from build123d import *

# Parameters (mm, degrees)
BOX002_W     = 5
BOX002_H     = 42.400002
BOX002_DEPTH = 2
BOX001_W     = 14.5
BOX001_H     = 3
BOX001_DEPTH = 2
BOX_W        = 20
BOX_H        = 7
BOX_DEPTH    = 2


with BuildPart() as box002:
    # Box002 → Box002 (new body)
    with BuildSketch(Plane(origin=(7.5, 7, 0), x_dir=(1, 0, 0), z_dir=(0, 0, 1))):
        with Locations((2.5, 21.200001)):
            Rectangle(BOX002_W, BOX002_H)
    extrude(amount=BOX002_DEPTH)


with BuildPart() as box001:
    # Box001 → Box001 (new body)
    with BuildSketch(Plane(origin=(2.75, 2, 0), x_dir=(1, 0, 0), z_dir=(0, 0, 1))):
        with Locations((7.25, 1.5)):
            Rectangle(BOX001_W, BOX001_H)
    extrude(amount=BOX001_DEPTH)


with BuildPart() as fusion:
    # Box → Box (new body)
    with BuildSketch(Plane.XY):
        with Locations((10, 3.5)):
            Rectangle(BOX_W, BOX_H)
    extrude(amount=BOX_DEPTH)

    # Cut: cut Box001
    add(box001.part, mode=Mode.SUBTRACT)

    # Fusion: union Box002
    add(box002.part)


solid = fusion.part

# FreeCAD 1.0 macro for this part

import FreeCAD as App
import Part
import Sketcher

V = App.Vector
Q = App.Units.Quantity


def add_polygon(sketch, points):
    """Adds a closed chain of lines whose ends are joined by coincident constraints."""
    first, n = sketch.GeometryCount, len(points)
    for a, b in zip(points, points[1:] + points[:1]):
        sketch.addGeometry(Part.LineSegment(App.Vector(*a, 0), App.Vector(*b, 0)), False)
    for i in range(n):
        sketch.addConstraint(Sketcher.Constraint("Coincident", first + i, 2, first + (i + 1) % n, 1))

doc = App.newDocument("Part")
params = doc.addObject("Spreadsheet::Sheet", "Params")
for row, (alias, value) in enumerate([
    ("sketch1_width", "5 mm"),
    ("pad1_length", "2 mm"),
    ("sketch2_height", "3 mm"),
    ("sketch2_width", "14.5 mm"),
    ("pad2_length", "2 mm"),
    ("sketch3_width", "20 mm"),
    ("sketch3_height", "7 mm"),
    ("pad3_length", "2 mm"),
], start=1):
    params.set(f"A{row}", alias)
    params.set(f"B{row}", "=" + value)
    params.setAlias(f"B{row}", alias)

body = doc.addObject("PartDesign::Body", "Body")

sketch1 = body.newObject("Sketcher::SketchObject", "Sketch")
sketch1.AttachmentSupport = (doc.getObject("XY_Plane"), [""])
sketch1.MapMode = "FlatFace"
add_polygon(sketch1, [(7.5, 49.400002), (7.5, 7), (12.5, 7), (12.5, 49.400002)])
sketch1.addConstraint([
    Sketcher.Constraint("Vertical", 0),
    Sketcher.Constraint("Horizontal", 1),
    Sketcher.Constraint("Vertical", 2),
    Sketcher.Constraint("Horizontal", 3),
    Sketcher.Constraint("DistanceX", 1, 1, 1, 2, Q("5 mm")),
    Sketcher.Constraint("DistanceY", -1, 1, 0, 2, Q("7 mm")),
    Sketcher.Constraint("DistanceX", -1, 1, 0, 2, Q("7.5 mm")),
    Sketcher.Constraint("DistanceY", 0, 2, 0, 1, Q("42.400002 mm")),
])
sketch1.setExpression("Constraints[8]", "Params.sketch1_width")
pad1 = body.newObject("PartDesign::Pad", "Pad")
pad1.Profile = sketch1
pad1.setExpression("Length", "Params.pad1_length")
body2 = doc.addObject("PartDesign::Body", "Body001")

sketch2 = body2.newObject("Sketcher::SketchObject", "Sketch001")
sketch2.AttachmentSupport = (doc.getObject("XY_Plane001"), [""])
sketch2.MapMode = "FlatFace"
add_polygon(sketch2, [(2.75, 5), (2.75, 2), (17.25, 2), (17.25, 5)])
sketch2.addConstraint([
    Sketcher.Constraint("Vertical", 0),
    Sketcher.Constraint("Horizontal", 1),
    Sketcher.Constraint("Vertical", 2),
    Sketcher.Constraint("Horizontal", 3),
    Sketcher.Constraint("DistanceY", 0, 2, 0, 1, Q("3 mm")),
    Sketcher.Constraint("DistanceX", 1, 1, 1, 2, Q("14.5 mm")),
    Sketcher.Constraint("DistanceY", -1, 1, 0, 2, Q("2 mm")),
    Sketcher.Constraint("DistanceX", -1, 1, 0, 2, Q("2.75 mm")),
])
sketch2.setExpression("Constraints[8]", "Params.sketch2_height")
sketch2.setExpression("Constraints[9]", "Params.sketch2_width")
pad2 = body2.newObject("PartDesign::Pad", "Pad001")
pad2.Profile = sketch2
pad2.setExpression("Length", "Params.pad2_length")
body3 = doc.addObject("PartDesign::Body", "Body002")

sketch3 = body3.newObject("Sketcher::SketchObject", "Sketch002")
sketch3.AttachmentSupport = (doc.getObject("XY_Plane002"), [""])
sketch3.MapMode = "FlatFace"
add_polygon(sketch3, [(0, 7), (0, 0), (20, 0), (20, 7)])
sketch3.addConstraint([
    Sketcher.Constraint("Vertical", 0),
    Sketcher.Constraint("Horizontal", 1),
    Sketcher.Constraint("Vertical", 2),
    Sketcher.Constraint("Horizontal", 3),
    Sketcher.Constraint("Coincident", 0, 2, -1, 1),
    Sketcher.Constraint("DistanceX", 1, 1, 1, 2, Q("20 mm")),
    Sketcher.Constraint("DistanceY", 0, 2, 0, 1, Q("7 mm")),
])
sketch3.setExpression("Constraints[9]", "Params.sketch3_width")
sketch3.setExpression("Constraints[10]", "Params.sketch3_height")
pad3 = body3.newObject("PartDesign::Pad", "Pad002")
pad3.Profile = sketch3
pad3.setExpression("Length", "Params.pad3_length")
doc.recompute()

boolean = body3.newObject("PartDesign::Boolean", "Boolean")
boolean.Type = "Cut"
boolean.addObjects([body2])
doc.recompute()

boolean2 = body3.newObject("PartDesign::Boolean", "Boolean001")
boolean2.Type = "Fuse"
boolean2.addObjects([body])

doc.recompute()
